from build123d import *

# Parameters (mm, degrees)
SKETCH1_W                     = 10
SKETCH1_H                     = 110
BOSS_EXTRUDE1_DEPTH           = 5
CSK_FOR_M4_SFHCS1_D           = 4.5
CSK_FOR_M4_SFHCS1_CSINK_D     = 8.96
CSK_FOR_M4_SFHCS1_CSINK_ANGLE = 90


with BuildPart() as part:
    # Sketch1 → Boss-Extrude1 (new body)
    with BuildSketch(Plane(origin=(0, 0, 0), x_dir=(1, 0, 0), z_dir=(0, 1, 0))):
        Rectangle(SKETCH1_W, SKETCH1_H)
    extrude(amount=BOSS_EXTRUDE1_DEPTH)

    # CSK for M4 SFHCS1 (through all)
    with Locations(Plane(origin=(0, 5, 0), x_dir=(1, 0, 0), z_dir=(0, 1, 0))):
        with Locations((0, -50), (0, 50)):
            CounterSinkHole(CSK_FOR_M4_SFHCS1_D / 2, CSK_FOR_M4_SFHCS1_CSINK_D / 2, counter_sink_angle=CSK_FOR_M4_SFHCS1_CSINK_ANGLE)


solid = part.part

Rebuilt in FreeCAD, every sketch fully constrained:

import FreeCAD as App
import Part
import Sketcher

V = App.Vector
Q = App.Units.Quantity


def add_polygon(sketch, points):
    """Adds a closed chain of lines whose ends are joined by coincident constraints."""
    first, n = sketch.GeometryCount, len(points)
    for a, b in zip(points, points[1:] + points[:1]):
        sketch.addGeometry(Part.LineSegment(App.Vector(*a, 0), App.Vector(*b, 0)), False)
    for i in range(n):
        sketch.addConstraint(Sketcher.Constraint("Coincident", first + i, 2, first + (i + 1) % n, 1))

doc = App.newDocument("Part")
body = doc.addObject("PartDesign::Body", "Body")

# Sketch on XZ plane
sketch1 = body.newObject("Sketcher::SketchObject", "Sketch")
sketch1.AttachmentSupport = (doc.getObject("XZ_Plane"), [""])
sketch1.MapMode = "FlatFace"
add_polygon(sketch1, [(-5, -55), (-5, 55), (5, 55), (5, -55)])  # lines 0-3
sketch1.addConstraint(Sketcher.Constraint("Vertical", 0))
sketch1.addConstraint(Sketcher.Constraint("Horizontal", 1))
sketch1.addConstraint(Sketcher.Constraint("Vertical", 2))
sketch1.addConstraint(Sketcher.Constraint("Horizontal", 3))
sketch1.addConstraint(Sketcher.Constraint("Symmetric", 0, 2, 2, 2, -1, 1))
sketch1.addConstraint(Sketcher.Constraint("DistanceX", 1, 1, 1, 2, Q("10 mm")))
sketch1.addConstraint(Sketcher.Constraint("DistanceY", 0, 1, 0, 2, Q("110 mm")))
pad1 = body.newObject("PartDesign::Pad", "Pad")
pad1.Profile = sketch1
pad1.Length = 5
pad1.Reversed = True

# Sketch on XZ plane
sketch2 = body.newObject("Sketcher::SketchObject", "Sketch001")
sketch2.AttachmentSupport = (doc.getObject("XZ_Plane"), [""])
sketch2.MapMode = "FlatFace"
sketch2.AttachmentOffset = App.Placement(V(0, 0, -5), App.Rotation())
sketch2.addGeometry(Part.Circle(V(0, 50, 0), V(0, 0, 1), 2.2), False)
sketch2.addGeometry(Part.Circle(V(0, -50, 0), V(0, 0, 1), 2.2), False)
sketch2.addConstraint(Sketcher.Constraint("Equal", 0, 1))
sketch2.addConstraint(Sketcher.Constraint("Symmetric", 0, 3, 1, 3, -1, 1))
sketch2.addConstraint(Sketcher.Constraint("PointOnObject", 0, 3, -2))
sketch2.addConstraint(Sketcher.Constraint("Diameter", 0, Q("4.5 mm")))
sketch2.addConstraint(Sketcher.Constraint("DistanceY", -1, 1, 0, 3, Q("50 mm")))
doc.recompute()
hole = body.newObject("PartDesign::Hole", "Hole")
hole.Profile = sketch2
hole.ThreadType = "None"
hole.Diameter = 4.5
hole.DepthType = "ThroughAll"
hole.HoleCutType = "Countersink"
hole.HoleCutDiameter = 8.96
hole.HoleCutCountersinkAngle = 90
hole.Reversed = True

doc.recompute()
